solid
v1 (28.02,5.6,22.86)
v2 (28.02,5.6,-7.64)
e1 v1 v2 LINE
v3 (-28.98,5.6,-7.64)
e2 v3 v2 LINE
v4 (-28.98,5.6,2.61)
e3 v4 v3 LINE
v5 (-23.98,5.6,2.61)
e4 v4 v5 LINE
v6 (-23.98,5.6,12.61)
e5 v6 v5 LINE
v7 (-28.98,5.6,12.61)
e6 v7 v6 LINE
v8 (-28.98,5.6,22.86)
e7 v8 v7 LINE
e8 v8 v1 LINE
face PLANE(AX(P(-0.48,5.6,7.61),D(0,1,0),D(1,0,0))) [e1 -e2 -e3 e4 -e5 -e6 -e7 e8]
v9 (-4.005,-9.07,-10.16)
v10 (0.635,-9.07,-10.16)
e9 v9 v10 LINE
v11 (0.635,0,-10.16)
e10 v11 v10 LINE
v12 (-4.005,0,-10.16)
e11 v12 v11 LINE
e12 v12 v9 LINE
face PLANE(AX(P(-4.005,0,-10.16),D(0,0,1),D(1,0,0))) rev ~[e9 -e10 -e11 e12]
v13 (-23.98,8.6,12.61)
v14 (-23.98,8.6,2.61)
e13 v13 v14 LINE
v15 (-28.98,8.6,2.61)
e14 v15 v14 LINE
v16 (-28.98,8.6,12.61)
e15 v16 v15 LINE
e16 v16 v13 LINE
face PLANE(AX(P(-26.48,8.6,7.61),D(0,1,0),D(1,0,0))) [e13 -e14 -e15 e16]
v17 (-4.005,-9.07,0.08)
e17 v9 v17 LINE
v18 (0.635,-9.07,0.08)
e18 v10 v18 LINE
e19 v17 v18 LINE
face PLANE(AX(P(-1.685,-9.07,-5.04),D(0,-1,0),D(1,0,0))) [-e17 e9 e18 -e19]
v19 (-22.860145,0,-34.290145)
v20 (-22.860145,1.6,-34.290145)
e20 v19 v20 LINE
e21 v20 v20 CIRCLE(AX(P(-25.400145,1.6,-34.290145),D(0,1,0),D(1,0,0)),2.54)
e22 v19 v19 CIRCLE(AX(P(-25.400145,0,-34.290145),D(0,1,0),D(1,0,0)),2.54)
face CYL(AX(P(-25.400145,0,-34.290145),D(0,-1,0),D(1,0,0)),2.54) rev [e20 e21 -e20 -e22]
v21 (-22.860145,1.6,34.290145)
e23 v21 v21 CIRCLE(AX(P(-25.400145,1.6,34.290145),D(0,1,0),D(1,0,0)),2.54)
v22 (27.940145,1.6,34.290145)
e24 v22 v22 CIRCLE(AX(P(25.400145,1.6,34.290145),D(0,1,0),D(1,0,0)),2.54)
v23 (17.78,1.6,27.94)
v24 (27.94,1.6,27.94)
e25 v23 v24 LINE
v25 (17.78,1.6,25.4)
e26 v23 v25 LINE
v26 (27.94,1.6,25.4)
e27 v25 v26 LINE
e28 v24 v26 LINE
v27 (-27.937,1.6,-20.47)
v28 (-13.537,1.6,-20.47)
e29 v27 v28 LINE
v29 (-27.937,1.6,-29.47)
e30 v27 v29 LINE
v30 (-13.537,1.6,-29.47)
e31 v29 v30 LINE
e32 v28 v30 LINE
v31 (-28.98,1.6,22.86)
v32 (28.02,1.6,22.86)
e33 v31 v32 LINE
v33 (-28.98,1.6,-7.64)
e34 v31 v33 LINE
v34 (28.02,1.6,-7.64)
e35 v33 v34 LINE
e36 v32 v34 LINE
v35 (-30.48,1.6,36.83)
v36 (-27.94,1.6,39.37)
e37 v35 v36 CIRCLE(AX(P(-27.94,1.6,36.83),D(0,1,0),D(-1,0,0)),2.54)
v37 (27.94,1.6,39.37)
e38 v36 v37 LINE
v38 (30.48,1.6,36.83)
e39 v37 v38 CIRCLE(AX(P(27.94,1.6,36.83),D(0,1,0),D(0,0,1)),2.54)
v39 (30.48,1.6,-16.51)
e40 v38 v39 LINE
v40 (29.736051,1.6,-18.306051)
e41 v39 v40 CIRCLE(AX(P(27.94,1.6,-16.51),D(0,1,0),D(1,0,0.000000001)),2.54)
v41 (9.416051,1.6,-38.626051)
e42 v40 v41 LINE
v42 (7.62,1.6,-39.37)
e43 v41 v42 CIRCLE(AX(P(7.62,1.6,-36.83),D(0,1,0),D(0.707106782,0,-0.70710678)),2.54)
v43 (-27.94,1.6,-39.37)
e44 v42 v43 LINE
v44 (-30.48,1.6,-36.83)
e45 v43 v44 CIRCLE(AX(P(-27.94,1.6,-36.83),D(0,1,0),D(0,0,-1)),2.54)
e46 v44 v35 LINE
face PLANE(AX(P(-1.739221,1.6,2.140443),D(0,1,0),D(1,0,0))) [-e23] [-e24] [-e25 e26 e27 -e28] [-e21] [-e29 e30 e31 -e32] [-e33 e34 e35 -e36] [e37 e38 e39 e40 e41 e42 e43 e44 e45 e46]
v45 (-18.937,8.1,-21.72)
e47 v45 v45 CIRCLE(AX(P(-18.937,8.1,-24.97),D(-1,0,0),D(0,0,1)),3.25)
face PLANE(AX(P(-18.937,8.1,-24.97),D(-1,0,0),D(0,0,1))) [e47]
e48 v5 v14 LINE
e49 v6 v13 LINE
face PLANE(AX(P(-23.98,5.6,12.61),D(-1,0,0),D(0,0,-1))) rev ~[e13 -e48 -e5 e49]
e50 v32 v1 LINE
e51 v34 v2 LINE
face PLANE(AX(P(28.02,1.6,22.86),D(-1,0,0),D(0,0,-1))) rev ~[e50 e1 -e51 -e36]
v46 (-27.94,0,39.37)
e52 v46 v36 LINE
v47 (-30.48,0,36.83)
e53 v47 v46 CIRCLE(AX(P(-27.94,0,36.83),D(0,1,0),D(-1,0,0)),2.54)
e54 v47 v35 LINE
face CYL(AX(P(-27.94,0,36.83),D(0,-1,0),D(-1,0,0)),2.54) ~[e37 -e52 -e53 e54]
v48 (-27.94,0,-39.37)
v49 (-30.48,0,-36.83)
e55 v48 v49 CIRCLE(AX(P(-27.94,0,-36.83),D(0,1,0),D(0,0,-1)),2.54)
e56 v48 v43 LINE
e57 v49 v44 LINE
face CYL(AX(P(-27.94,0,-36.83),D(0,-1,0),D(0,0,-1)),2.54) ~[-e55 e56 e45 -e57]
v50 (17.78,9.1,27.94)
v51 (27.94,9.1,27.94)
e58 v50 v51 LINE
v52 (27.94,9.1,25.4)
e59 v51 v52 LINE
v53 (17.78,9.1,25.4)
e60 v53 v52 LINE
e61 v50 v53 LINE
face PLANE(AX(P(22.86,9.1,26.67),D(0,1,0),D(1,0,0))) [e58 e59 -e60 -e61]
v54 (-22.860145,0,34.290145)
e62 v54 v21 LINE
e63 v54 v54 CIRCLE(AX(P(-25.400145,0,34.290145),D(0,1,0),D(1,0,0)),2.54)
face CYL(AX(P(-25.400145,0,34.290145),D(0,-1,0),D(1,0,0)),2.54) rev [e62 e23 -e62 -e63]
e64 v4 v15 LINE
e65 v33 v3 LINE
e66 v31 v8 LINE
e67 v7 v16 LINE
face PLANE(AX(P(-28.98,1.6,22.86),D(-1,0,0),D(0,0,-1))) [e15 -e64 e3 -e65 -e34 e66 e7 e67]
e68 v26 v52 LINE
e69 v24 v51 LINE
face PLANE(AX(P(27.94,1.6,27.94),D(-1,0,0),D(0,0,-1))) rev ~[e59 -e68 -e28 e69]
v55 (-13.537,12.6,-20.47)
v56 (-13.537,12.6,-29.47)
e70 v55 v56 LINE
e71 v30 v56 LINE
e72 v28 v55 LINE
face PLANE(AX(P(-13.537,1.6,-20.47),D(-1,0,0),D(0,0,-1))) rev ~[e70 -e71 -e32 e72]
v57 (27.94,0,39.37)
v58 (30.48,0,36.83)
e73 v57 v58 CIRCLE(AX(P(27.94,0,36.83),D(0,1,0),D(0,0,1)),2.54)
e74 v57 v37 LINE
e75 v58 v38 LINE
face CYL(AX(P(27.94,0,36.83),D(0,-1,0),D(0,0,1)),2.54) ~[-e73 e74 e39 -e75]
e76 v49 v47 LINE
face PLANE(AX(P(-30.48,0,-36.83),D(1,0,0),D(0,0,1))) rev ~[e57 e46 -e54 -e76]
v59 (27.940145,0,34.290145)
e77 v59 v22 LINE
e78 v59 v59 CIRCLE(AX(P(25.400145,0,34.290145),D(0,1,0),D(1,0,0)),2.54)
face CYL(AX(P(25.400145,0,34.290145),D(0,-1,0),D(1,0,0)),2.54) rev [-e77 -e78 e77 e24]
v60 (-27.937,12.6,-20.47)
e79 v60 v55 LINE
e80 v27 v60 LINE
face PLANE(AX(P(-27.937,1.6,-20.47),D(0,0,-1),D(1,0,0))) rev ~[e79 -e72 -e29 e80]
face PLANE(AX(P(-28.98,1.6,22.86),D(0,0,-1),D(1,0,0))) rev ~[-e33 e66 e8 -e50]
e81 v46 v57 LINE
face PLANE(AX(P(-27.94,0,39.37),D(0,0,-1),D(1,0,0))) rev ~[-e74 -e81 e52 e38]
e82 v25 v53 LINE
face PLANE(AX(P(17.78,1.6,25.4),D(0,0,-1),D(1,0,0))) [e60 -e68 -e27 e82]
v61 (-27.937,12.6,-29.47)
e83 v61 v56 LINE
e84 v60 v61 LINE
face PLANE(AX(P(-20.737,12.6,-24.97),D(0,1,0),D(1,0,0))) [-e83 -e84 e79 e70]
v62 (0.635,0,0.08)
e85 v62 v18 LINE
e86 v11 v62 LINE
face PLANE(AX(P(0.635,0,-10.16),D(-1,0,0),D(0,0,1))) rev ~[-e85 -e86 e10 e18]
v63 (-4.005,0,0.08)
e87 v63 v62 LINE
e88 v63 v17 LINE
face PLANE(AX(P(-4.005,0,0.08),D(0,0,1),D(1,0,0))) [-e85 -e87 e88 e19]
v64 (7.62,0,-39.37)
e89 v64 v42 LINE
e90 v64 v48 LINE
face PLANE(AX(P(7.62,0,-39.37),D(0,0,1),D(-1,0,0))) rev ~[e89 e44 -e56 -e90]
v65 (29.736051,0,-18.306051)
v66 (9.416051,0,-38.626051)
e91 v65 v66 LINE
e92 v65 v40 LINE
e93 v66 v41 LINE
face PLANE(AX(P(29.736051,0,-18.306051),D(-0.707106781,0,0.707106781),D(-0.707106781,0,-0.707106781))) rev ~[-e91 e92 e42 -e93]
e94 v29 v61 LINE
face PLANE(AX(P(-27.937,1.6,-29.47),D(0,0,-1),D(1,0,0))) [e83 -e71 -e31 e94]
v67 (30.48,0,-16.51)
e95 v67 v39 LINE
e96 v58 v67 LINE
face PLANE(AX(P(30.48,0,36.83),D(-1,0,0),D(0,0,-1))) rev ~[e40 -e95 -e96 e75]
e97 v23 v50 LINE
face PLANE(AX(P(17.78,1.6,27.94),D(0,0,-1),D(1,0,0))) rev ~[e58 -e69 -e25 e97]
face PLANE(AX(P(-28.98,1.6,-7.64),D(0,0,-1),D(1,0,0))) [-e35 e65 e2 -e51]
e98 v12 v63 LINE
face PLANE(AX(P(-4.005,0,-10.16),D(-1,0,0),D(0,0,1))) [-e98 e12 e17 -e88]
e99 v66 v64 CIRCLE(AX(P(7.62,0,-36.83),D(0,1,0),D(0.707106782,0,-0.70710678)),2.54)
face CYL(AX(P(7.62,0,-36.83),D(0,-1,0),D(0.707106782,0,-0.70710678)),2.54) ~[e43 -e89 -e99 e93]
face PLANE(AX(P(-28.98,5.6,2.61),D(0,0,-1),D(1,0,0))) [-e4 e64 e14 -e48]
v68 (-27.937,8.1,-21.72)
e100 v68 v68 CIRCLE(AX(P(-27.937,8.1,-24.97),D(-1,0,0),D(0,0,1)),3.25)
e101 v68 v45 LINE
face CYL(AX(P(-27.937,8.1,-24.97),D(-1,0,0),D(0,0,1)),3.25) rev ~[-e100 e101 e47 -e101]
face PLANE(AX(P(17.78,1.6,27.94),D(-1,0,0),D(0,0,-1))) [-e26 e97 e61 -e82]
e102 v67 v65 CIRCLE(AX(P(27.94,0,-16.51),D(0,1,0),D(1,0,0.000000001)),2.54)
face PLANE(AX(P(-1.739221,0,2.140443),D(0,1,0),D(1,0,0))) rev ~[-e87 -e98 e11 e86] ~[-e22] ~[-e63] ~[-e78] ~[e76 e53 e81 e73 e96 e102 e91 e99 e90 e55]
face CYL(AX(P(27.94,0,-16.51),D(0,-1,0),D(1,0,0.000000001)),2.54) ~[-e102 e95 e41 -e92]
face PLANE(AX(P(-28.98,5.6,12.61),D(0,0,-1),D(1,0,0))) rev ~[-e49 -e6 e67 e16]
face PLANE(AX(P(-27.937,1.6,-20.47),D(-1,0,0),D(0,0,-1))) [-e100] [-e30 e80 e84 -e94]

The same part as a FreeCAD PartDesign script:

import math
import FreeCAD as App
import Part
import Sketcher
Q = App.Units.Quantity

doc = App.newDocument("Part")
body = doc.addObject("PartDesign::Body", "Body")

# Sketch on XZ plane
sketch1 = doc.addObject("Sketcher::SketchObject", "Sketch")
body.addObject(sketch1)
sketch1.AttachmentSupport = (doc.XZ_Plane, [""])
sketch1.MapMode = "FlatFace"
sketch1.addGeometry([
    Part.LineSegment(App.Vector(30.5, 36.8, 0), App.Vector(30.5, -16.5, 0)),  # 0
    Part.ArcOfCircle(Part.Circle(App.Vector(27.9, -16.5, 0), App.Vector(0, 0, 1), 2.5), math.radians(-45), math.radians(0)),  # 1
    Part.LineSegment(App.Vector(29.7, -18.3, 0), App.Vector(9.4, -38.6, 0)),  # 2
    Part.ArcOfCircle(Part.Circle(App.Vector(7.6, -36.8, 0), App.Vector(0, 0, 1), 2.5), math.radians(-90), math.radians(-45)),  # 3
    Part.LineSegment(App.Vector(7.6, -39.4, 0), App.Vector(-27.9, -39.4, 0)),  # 4
    Part.ArcOfCircle(Part.Circle(App.Vector(-27.9, -36.8, 0), App.Vector(0, 0, 1), 2.5), math.radians(-180), math.radians(-90)),  # 5
    Part.LineSegment(App.Vector(-30.5, -36.8, 0), App.Vector(-30.5, 36.8, 0)),  # 6
    Part.ArcOfCircle(Part.Circle(App.Vector(-27.9, 36.8, 0), App.Vector(0, 0, 1), 2.5), math.radians(90), math.radians(180)),  # 7
    Part.LineSegment(App.Vector(-27.9, 39.4, 0), App.Vector(27.9, 39.4, 0)),  # 8
    Part.ArcOfCircle(Part.Circle(App.Vector(27.9, 36.8, 0), App.Vector(0, 0, 1), 2.5), math.radians(0), math.radians(90)),  # 9
], False)
sketch1.addConstraint([
    Sketcher.Constraint("Tangent", 0, 2, 1, 2),
    Sketcher.Constraint("Tangent", 1, 1, 2, 1),
    Sketcher.Constraint("Tangent", 2, 2, 3, 2),
    Sketcher.Constraint("Tangent", 3, 1, 4, 1),
    Sketcher.Constraint("Tangent", 4, 2, 5, 2),
    Sketcher.Constraint("Tangent", 5, 1, 6, 1),
    Sketcher.Constraint("Tangent", 6, 2, 7, 2),
    Sketcher.Constraint("Tangent", 7, 1, 8, 1),
    Sketcher.Constraint("Tangent", 8, 2, 9, 2),
    Sketcher.Constraint("Tangent", 9, 1, 0, 1),
    Sketcher.Constraint("Vertical", 0),
    Sketcher.Constraint("Horizontal", 4),
    Sketcher.Constraint("Vertical", 6),
    Sketcher.Constraint("Horizontal", 8),
    Sketcher.Constraint("Equal", 1, 3),
    Sketcher.Constraint("Equal", 3, 5),
    Sketcher.Constraint("Equal", 5, 7),
    Sketcher.Constraint("Equal", 7, 9),
    Sketcher.Constraint("Symmetric", 5, 3, 9, 3, -1, 1),
    Sketcher.Constraint("Angle", 2, Q("-135 deg")),
    Sketcher.Constraint("Radius", 1, Q("2.54 mm")),
    Sketcher.Constraint("DistanceX", 4, 2, 4, 1, Q("35.56 mm")),
    Sketcher.Constraint("DistanceX", 8, 1, 8, 2, Q("55.88 mm")),
    Sketcher.Constraint("DistanceY", 0, 2, 0, 1, Q("53.34 mm")),
])
pad1 = doc.addObject("PartDesign::Pad", "Pad")
body.addObject(pad1)
pad1.Profile = sketch1
pad1.Length = 1.6
pad1.Reversed = True

# Sketch on XZ plane
sketch2 = doc.addObject("Sketcher::SketchObject", "Sketch001")
body.addObject(sketch2)
sketch2.AttachmentSupport = (doc.XZ_Plane, [""])
sketch2.MapMode = "FlatFace"
sketch2.addGeometry([
    Part.Circle(App.Vector(-25.4, 34.3, 0), App.Vector(0, 0, 1), 2.5),
    Part.Circle(App.Vector(25.4, 34.3, 0), App.Vector(0, 0, 1), 2.5),
    Part.Circle(App.Vector(-25.4, -34.3, 0), App.Vector(0, 0, 1), 2.5),
], False)
sketch2.addConstraint([
    Sketcher.Constraint("Equal", 0, 1),
    Sketcher.Constraint("Equal", 1, 2),
    Sketcher.Constraint("Symmetric", 1, 3, 2, 3, -1, 1),
    Sketcher.Constraint("Symmetric", 0, 3, 1, 3, -2),
    Sketcher.Constraint("Diameter", 0, Q("5.08 mm")),
    Sketcher.Constraint("DistanceX", 0, 3, 1, 3, Q("50.80029 mm")),
    Sketcher.Constraint("DistanceY", 2, 3, 0, 3, Q("68.58029 mm")),
])
pocket1 = doc.addObject("PartDesign::Pocket", "Pocket")
body.addObject(pocket1)
pocket1.Profile = sketch2
pocket1.Length = 1.6

# Sketch on XZ plane
sketch3 = doc.addObject("Sketcher::SketchObject", "Sketch002")
body.addObject(sketch3)
sketch3.AttachmentSupport = (doc.XZ_Plane, [""])
sketch3.MapMode = "FlatFace"
sketch3.AttachmentOffset = App.Placement(App.Vector(0, 0, -1.6), App.Rotation())
sketch3.addGeometry([
    Part.LineSegment(App.Vector(-28, -29, 0), App.Vector(-28, -20, 0)),
    Part.LineSegment(App.Vector(-28, -20, 0), App.Vector(-14, -20, 0)),
    Part.LineSegment(App.Vector(-14, -20, 0), App.Vector(-14, -29, 0)),
    Part.LineSegment(App.Vector(-14, -29, 0), App.Vector(-28, -29, 0)),
], False)
sketch3.addConstraint([
    Sketcher.Constraint("Coincident", 0, 2, 1, 1),
    Sketcher.Constraint("Coincident", 1, 2, 2, 1),
    Sketcher.Constraint("Coincident", 2, 2, 3, 1),
    Sketcher.Constraint("Coincident", 3, 2, 0, 1),
    Sketcher.Constraint("Vertical", 0),
    Sketcher.Constraint("Horizontal", 1),
    Sketcher.Constraint("Vertical", 2),
    Sketcher.Constraint("Horizontal", 3),
    Sketcher.Constraint("DistanceY", 0, 1, 0, 2, Q("9 mm")),
    Sketcher.Constraint("DistanceX", 1, 1, 1, 2, Q("14.4 mm")),
    Sketcher.Constraint("DistanceY", 0, 2, -1, 1, Q("20.47 mm")),
    Sketcher.Constraint("DistanceX", 0, 2, -1, 1, Q("27.937 mm")),
])
pad2 = doc.addObject("PartDesign::Pad", "Pad001")
body.addObject(pad2)
pad2.Profile = sketch3
pad2.Length = 11
pad2.Reversed = True

# Sketch on YZ plane
sketch4 = doc.addObject("Sketcher::SketchObject", "Sketch003")
body.addObject(sketch4)
sketch4.AttachmentSupport = (doc.YZ_Plane, [""])
sketch4.MapMode = "FlatFace"
sketch4.AttachmentOffset = App.Placement(App.Vector(0, 0, -27.937), App.Rotation())
sketch4.addGeometry(Part.Circle(App.Vector(8.1, -25, 0), App.Vector(0, 0, 1), 3.2), False)
sketch4.addConstraint([
    Sketcher.Constraint("Diameter", 0, Q("6.5 mm")),
    Sketcher.Constraint("DistanceX", -1, 1, 0, 3, Q("8.1 mm")),
    Sketcher.Constraint("DistanceY", 0, 3, -1, 1, Q("24.97 mm")),
])
pocket2 = doc.addObject("PartDesign::Pocket", "Pocket001")
body.addObject(pocket2)
pocket2.Profile = sketch4
pocket2.Length = 9
pocket2.Reversed = True

# Sketch on XZ plane
sketch5 = doc.addObject("Sketcher::SketchObject", "Sketch004")
body.addObject(sketch5)
sketch5.AttachmentSupport = (doc.XZ_Plane, [""])
sketch5.MapMode = "FlatFace"
sketch5.AttachmentOffset = App.Placement(App.Vector(0, 0, -1.6), App.Rotation())
sketch5.addGeometry([
    Part.LineSegment(App.Vector(17.8, 25.4, 0), App.Vector(17.8, 27.9, 0)),
    Part.LineSegment(App.Vector(17.8, 27.9, 0), App.Vector(27.9, 27.9, 0)),
    Part.LineSegment(App.Vector(27.9, 27.9, 0), App.Vector(27.9, 25.4, 0)),
    Part.LineSegment(App.Vector(27.9, 25.4, 0), App.Vector(17.8, 25.4, 0)),
], False)
sketch5.addConstraint([
    Sketcher.Constraint("Coincident", 0, 2, 1, 1),
    Sketcher.Constraint("Coincident", 1, 2, 2, 1),
    Sketcher.Constraint("Coincident", 2, 2, 3, 1),
    Sketcher.Constraint("Coincident", 3, 2, 0, 1),
    Sketcher.Constraint("Vertical", 0),
    Sketcher.Constraint("Horizontal", 1),
    Sketcher.Constraint("Vertical", 2),
    Sketcher.Constraint("Horizontal", 3),
    Sketcher.Constraint("DistanceX", 1, 1, 1, 2, Q("10.16 mm")),
    Sketcher.Constraint("DistanceY", 0, 1, 0, 2, Q("2.54 mm")),
    Sketcher.Constraint("DistanceY", -1, 1, 2, 2, Q("25.4 mm")),
    Sketcher.Constraint("DistanceX", -1, 1, 0, 2, Q("17.78 mm")),
])
pad3 = doc.addObject("PartDesign::Pad", "Pad002")
body.addObject(pad3)
pad3.Profile = sketch5
pad3.Length = 7.5
pad3.Reversed = True

# Sketch on XZ plane
sketch6 = doc.addObject("Sketcher::SketchObject", "Sketch005")
body.addObject(sketch6)
sketch6.AttachmentSupport = (doc.XZ_Plane, [""])
sketch6.MapMode = "FlatFace"
sketch6.AttachmentOffset = App.Placement(App.Vector(0, 0, -1.6), App.Rotation())
sketch6.addGeometry([
    Part.LineSegment(App.Vector(-29, -8, 0), App.Vector(-29, 23, 0)),
    Part.LineSegment(App.Vector(-29, 23, 0), App.Vector(28, 23, 0)),
    Part.LineSegment(App.Vector(28, 23, 0), App.Vector(28, -8, 0)),
    Part.LineSegment(App.Vector(28, -8, 0), App.Vector(-29, -8, 0)),
], False)
sketch6.addConstraint([
    Sketcher.Constraint("Coincident", 0, 2, 1, 1),
    Sketcher.Constraint("Coincident", 1, 2, 2, 1),
    Sketcher.Constraint("Coincident", 2, 2, 3, 1),
    Sketcher.Constraint("Coincident", 3, 2, 0, 1),
    Sketcher.Constraint("Vertical", 0),
    Sketcher.Constraint("Horizontal", 1),
    Sketcher.Constraint("Vertical", 2),
    Sketcher.Constraint("Horizontal", 3),
    Sketcher.Constraint("DistanceX", 1, 1, 1, 2, Q("57 mm")),
    Sketcher.Constraint("DistanceY", 0, 1, 0, 2, Q("30.5 mm")),
    Sketcher.Constraint("DistanceX", 0, 2, -1, 1, Q("28.98 mm")),
    Sketcher.Constraint("DistanceY", -1, 1, 0, 2, Q("22.86 mm")),
])
pad4 = doc.addObject("PartDesign::Pad", "Pad003")
body.addObject(pad4)
pad4.Profile = sketch6
pad4.Length = 4
pad4.Reversed = True

# Sketch on XZ plane
sketch7 = doc.addObject("Sketcher::SketchObject", "Sketch006")
body.addObject(sketch7)
sketch7.AttachmentSupport = (doc.XZ_Plane, [""])
sketch7.MapMode = "FlatFace"
sketch7.AttachmentOffset = App.Placement(App.Vector(0, 0, -5.6), App.Rotation())
sketch7.addGeometry([
    Part.LineSegment(App.Vector(-29, 3, 0), App.Vector(-29, 13, 0)),
    Part.LineSegment(App.Vector(-29, 13, 0), App.Vector(-24, 13, 0)),
    Part.LineSegment(App.Vector(-24, 13, 0), App.Vector(-24, 3, 0)),
    Part.LineSegment(App.Vector(-24, 3, 0), App.Vector(-29, 3, 0)),
], False)
sketch7.addConstraint([
    Sketcher.Constraint("Coincident", 0, 2, 1, 1),
    Sketcher.Constraint("Coincident", 1, 2, 2, 1),
    Sketcher.Constraint("Coincident", 2, 2, 3, 1),
    Sketcher.Constraint("Coincident", 3, 2, 0, 1),
    Sketcher.Constraint("Vertical", 0),
    Sketcher.Constraint("Horizontal", 1),
    Sketcher.Constraint("Vertical", 2),
    Sketcher.Constraint("Horizontal", 3),
    Sketcher.Constraint("DistanceX", 1, 1, 1, 2, Q("5 mm")),
    Sketcher.Constraint("DistanceY", 0, 1, 0, 2, Q("10 mm")),
    Sketcher.Constraint("DistanceX", 0, 2, -1, 1, Q("28.98 mm")),
    Sketcher.Constraint("DistanceY", -1, 1, 0, 2, Q("12.61 mm")),
])
pad5 = doc.addObject("PartDesign::Pad", "Pad004")
body.addObject(pad5)
pad5.Profile = sketch7
pad5.Length = 3
pad5.Reversed = True

# Sketch on XZ plane
sketch8 = doc.addObject("Sketcher::SketchObject", "Sketch007")
body.addObject(sketch8)
sketch8.AttachmentSupport = (doc.XZ_Plane, [""])
sketch8.MapMode = "FlatFace"
sketch8.addGeometry([
    Part.LineSegment(App.Vector(-4, 0.1, 0), App.Vector(-4, -10.2, 0)),
    Part.LineSegment(App.Vector(-4, -10.2, 0), App.Vector(0.6, -10.2, 0)),
    Part.LineSegment(App.Vector(0.6, -10.2, 0), App.Vector(0.6, 0.1, 0)),
    Part.LineSegment(App.Vector(0.6, 0.1, 0), App.Vector(-4, 0.1, 0)),
], False)
sketch8.addConstraint([
    Sketcher.Constraint("Coincident", 0, 2, 1, 1),
    Sketcher.Constraint("Coincident", 1, 2, 2, 1),
    Sketcher.Constraint("Coincident", 2, 2, 3, 1),
    Sketcher.Constraint("Coincident", 3, 2, 0, 1),
    Sketcher.Constraint("Vertical", 0),
    Sketcher.Constraint("Horizontal", 1),
    Sketcher.Constraint("Vertical", 2),
    Sketcher.Constraint("Horizontal", 3),
    Sketcher.Constraint("DistanceX", 1, 1, 1, 2, Q("4.64 mm")),
    Sketcher.Constraint("DistanceY", 0, 2, 0, 1, Q("10.24 mm")),
    Sketcher.Constraint("DistanceY", 0, 2, -1, 1, Q("10.16 mm")),
    Sketcher.Constraint("DistanceX", 0, 2, -1, 1, Q("4.005 mm")),
])
pad6 = doc.addObject("PartDesign::Pad", "Pad005")
body.addObject(pad6)
pad6.Profile = sketch8
pad6.Length = 9.07

doc.recompute()
